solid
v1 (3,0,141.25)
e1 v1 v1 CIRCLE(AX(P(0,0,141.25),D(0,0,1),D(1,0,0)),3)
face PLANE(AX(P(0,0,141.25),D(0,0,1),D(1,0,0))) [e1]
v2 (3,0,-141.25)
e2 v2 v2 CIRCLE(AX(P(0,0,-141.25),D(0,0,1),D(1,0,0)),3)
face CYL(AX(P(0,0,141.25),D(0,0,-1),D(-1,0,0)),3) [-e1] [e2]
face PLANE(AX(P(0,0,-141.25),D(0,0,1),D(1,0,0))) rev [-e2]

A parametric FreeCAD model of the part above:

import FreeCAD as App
import Part
import Sketcher
from FreeCAD import Vector

doc = App.newDocument("Part")
body = doc.addObject("PartDesign::Body", "Body")

# Sketch on XY plane
sketch1 = body.newObject("Sketcher::SketchObject", "Sketch")
sketch1.AttachmentSupport = (doc.getObject("XY_Plane"), [""])
sketch1.MapMode = "FlatFace"
sketch1.addGeometry(Part.Circle(Vector(0, 0, 0), Vector(0, 0, 1), 3), False)
sketch1.addConstraint(Sketcher.Constraint("Coincident", 0, 3, -1, 1))
sketch1.addConstraint(Sketcher.Constraint("Diameter", 0, 6.0))
pad1 = body.newObject("PartDesign::Pad", "Pad")
pad1.Profile = sketch1
pad1.Length = 282.5
pad1.Midplane = True

doc.recompute()
